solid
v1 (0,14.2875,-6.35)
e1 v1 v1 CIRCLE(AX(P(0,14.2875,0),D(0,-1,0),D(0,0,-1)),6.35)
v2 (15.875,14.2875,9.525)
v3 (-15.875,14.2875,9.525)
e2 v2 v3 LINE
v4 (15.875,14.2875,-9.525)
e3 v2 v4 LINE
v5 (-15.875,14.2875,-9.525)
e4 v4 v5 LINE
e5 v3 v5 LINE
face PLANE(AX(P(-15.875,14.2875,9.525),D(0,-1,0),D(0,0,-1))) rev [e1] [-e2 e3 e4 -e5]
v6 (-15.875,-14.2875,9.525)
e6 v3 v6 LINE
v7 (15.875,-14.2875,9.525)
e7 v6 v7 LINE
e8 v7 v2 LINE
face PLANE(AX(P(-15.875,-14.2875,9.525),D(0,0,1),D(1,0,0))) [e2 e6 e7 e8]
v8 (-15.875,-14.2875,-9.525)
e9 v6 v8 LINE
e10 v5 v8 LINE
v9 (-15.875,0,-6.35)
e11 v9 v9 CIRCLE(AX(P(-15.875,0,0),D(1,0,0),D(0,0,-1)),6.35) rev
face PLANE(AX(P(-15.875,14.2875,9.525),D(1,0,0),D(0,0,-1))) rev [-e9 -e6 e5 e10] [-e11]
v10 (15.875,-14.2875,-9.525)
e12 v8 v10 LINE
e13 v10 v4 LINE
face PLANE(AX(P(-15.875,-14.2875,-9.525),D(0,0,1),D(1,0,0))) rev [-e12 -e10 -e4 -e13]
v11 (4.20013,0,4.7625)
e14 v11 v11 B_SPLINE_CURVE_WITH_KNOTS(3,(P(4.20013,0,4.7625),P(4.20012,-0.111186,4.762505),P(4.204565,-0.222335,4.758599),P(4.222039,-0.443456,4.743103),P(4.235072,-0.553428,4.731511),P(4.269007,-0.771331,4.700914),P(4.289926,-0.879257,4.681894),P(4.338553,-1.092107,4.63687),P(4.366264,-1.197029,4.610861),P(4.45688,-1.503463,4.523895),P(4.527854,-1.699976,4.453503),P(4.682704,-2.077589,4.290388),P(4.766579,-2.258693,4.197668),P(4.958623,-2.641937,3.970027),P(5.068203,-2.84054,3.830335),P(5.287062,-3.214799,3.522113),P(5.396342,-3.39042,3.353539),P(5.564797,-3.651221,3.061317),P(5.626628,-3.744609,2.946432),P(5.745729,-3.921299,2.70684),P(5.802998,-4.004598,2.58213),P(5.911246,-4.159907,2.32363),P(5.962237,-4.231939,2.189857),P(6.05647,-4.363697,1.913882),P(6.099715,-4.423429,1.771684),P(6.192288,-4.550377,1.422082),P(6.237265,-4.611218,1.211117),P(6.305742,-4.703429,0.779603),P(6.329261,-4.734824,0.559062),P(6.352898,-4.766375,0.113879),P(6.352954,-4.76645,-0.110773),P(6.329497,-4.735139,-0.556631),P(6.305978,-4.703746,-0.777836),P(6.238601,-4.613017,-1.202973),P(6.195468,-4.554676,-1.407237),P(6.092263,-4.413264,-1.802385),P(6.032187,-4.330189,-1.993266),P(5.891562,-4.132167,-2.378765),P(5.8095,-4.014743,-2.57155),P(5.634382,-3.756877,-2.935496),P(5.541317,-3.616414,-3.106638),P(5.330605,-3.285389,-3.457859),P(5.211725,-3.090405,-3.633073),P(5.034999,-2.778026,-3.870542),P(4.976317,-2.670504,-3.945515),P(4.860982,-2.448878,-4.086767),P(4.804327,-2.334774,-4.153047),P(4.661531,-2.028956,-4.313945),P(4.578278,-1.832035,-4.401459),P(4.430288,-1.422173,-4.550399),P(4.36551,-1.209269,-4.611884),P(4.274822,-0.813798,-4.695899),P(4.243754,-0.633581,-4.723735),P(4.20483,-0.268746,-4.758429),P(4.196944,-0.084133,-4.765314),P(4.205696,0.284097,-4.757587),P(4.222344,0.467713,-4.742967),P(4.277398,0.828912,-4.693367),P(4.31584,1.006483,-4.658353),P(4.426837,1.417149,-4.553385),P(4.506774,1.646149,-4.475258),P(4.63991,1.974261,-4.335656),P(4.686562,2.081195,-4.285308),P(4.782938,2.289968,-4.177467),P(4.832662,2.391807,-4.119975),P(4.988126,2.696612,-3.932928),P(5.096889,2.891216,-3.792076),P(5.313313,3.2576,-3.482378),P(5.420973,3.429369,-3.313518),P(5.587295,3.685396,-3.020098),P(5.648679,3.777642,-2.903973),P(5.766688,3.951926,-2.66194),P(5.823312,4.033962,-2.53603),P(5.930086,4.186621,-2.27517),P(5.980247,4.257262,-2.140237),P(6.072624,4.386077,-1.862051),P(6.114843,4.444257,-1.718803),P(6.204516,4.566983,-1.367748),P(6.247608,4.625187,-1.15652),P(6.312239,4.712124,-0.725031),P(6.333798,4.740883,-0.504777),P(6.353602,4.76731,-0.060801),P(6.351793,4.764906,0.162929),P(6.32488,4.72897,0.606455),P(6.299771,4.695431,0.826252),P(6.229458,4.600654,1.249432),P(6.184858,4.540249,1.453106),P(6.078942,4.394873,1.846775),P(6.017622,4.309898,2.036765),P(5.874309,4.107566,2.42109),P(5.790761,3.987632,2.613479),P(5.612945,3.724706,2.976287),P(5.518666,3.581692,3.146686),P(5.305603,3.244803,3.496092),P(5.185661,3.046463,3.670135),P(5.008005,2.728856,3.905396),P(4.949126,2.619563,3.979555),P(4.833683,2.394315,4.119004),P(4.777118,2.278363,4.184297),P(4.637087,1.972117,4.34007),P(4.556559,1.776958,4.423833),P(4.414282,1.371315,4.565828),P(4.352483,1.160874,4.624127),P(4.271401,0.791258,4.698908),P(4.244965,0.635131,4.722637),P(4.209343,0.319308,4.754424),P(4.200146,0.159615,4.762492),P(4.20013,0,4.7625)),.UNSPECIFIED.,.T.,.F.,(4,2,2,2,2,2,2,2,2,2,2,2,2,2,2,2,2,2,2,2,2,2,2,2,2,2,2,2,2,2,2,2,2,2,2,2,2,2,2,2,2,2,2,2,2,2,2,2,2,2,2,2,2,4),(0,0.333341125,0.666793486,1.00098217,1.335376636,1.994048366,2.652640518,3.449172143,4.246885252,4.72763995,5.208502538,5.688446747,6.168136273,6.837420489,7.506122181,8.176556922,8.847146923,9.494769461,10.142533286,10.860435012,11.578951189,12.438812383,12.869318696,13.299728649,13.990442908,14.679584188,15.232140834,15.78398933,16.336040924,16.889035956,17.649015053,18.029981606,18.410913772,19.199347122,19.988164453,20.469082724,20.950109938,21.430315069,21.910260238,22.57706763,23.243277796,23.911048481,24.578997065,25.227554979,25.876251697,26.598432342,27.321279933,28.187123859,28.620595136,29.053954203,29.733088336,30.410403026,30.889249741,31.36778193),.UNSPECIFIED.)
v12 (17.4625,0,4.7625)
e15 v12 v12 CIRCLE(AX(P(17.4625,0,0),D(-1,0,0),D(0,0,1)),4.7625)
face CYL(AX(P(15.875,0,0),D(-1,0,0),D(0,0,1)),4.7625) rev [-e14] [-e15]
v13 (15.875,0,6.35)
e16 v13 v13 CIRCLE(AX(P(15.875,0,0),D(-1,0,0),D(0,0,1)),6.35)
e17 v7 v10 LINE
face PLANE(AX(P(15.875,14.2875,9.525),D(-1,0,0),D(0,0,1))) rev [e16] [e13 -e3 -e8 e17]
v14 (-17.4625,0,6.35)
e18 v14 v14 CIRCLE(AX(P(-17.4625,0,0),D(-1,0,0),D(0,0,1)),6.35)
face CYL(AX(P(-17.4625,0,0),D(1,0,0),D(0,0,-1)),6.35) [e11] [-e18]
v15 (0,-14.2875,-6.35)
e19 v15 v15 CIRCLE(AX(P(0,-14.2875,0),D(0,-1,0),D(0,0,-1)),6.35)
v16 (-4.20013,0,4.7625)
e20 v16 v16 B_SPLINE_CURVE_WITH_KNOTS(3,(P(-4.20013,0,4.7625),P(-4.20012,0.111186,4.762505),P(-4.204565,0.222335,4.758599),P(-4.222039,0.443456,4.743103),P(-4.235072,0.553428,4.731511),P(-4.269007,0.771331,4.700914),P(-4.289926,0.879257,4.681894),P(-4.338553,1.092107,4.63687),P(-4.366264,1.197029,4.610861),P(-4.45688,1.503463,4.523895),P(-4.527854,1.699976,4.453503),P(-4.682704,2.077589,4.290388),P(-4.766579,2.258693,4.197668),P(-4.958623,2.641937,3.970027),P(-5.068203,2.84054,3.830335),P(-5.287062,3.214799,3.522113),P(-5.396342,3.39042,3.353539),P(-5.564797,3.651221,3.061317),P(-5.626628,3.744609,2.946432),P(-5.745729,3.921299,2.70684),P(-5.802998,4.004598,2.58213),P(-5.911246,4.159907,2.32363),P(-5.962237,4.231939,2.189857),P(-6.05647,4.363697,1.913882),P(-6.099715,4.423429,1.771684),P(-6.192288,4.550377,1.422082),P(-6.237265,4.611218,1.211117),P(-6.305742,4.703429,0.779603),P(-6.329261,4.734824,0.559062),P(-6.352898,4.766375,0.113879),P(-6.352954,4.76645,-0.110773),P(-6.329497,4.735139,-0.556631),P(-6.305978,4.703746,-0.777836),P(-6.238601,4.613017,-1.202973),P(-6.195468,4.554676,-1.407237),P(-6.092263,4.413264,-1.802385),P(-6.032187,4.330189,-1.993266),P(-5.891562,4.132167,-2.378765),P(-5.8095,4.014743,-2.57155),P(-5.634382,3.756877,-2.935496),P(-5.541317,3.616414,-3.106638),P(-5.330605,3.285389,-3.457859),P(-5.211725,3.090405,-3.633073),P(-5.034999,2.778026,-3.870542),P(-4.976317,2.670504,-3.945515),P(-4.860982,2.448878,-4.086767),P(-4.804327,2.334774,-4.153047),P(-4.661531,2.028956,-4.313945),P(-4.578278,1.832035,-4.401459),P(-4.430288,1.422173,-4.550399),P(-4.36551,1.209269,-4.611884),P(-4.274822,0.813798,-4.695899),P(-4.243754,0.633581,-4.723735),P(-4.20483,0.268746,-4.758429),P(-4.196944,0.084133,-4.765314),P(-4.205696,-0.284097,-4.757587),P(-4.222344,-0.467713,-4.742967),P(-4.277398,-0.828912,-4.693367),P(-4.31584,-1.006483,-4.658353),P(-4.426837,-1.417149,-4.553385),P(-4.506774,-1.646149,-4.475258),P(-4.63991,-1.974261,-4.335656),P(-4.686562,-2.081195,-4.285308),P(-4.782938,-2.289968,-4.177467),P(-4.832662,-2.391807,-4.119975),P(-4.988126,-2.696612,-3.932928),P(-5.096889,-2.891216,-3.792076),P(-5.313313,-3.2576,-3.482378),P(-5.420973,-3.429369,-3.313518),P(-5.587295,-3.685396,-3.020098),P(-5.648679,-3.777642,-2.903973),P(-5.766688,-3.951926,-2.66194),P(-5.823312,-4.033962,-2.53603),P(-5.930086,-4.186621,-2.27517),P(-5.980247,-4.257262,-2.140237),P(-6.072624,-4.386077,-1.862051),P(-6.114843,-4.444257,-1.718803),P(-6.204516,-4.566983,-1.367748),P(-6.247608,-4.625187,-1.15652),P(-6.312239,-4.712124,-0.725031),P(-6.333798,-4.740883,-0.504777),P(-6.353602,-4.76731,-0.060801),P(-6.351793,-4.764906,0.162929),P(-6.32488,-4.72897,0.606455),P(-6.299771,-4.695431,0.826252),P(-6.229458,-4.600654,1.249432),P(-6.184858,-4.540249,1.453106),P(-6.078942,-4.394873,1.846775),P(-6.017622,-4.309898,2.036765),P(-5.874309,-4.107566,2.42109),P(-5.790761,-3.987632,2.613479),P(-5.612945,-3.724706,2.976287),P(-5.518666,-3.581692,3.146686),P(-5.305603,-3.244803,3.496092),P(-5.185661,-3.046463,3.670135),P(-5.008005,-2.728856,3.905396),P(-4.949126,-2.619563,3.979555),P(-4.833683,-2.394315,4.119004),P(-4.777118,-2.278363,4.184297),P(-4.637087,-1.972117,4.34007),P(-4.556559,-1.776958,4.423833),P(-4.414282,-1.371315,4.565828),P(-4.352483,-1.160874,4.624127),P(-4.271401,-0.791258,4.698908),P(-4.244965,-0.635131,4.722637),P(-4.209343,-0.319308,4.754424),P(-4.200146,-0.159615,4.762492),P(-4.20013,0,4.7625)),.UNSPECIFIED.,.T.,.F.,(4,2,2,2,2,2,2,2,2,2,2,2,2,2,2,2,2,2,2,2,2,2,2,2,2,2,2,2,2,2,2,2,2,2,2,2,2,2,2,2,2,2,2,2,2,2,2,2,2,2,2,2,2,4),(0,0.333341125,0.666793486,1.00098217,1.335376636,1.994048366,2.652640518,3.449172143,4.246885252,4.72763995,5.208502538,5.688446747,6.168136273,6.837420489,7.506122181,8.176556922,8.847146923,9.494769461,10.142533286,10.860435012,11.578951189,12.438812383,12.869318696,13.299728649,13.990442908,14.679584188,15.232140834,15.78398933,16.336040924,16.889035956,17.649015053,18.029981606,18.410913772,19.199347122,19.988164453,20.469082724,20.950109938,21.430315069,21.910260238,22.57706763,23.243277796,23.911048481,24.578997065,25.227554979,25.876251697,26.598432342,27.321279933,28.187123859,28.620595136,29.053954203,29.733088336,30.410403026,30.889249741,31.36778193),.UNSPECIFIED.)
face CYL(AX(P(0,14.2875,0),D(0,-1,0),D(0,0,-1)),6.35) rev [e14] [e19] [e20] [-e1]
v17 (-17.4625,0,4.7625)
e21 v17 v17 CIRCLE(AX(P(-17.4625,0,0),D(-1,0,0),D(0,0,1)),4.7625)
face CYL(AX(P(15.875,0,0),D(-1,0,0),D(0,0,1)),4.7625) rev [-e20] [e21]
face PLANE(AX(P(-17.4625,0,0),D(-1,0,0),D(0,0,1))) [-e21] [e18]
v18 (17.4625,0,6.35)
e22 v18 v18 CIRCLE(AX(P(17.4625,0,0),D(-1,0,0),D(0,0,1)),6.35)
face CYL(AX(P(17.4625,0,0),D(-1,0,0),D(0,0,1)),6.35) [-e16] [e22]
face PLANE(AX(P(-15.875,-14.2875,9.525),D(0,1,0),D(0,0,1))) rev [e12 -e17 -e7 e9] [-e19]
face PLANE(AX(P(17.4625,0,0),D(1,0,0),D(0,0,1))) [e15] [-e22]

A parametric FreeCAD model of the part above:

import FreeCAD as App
import Part
import Sketcher
Q = App.Units.Quantity

doc = App.newDocument("Part")
body = doc.addObject("PartDesign::Body", "Body")

# Sketch on XY plane
sketch1 = body.newObject("Sketcher::SketchObject", "Sketch")
sketch1.AttachmentSupport = (doc.getObject("XY_Plane"), [""])
sketch1.MapMode = "FlatFace"
sketch1.addGeometry([
    Part.LineSegment(App.Vector(-16, 14, 0), App.Vector(-16, -14, 0)),
    Part.LineSegment(App.Vector(-16, -14, 0), App.Vector(16, -14, 0)),
    Part.LineSegment(App.Vector(16, -14, 0), App.Vector(16, 14, 0)),
    Part.LineSegment(App.Vector(16, 14, 0), App.Vector(-16, 14, 0)),
], False)
sketch1.addConstraint([
    Sketcher.Constraint("Coincident", 0, 2, 1, 1),
    Sketcher.Constraint("Coincident", 1, 2, 2, 1),
    Sketcher.Constraint("Coincident", 2, 2, 3, 1),
    Sketcher.Constraint("Coincident", 3, 2, 0, 1),
    Sketcher.Constraint("Vertical", 0),
    Sketcher.Constraint("Horizontal", 1),
    Sketcher.Constraint("Vertical", 2),
    Sketcher.Constraint("Horizontal", 3),
    Sketcher.Constraint("Symmetric", 0, 2, 2, 2, -1, 1),
    Sketcher.Constraint("DistanceX", 1, 1, 1, 2, Q("1.25 in")),
    Sketcher.Constraint("DistanceY", 0, 2, 0, 1, Q("1.125 in")),
])
pad1 = body.newObject("PartDesign::Pad", "Pad")
pad1.Profile = sketch1
pad1.Length = Q("0.75 in")
pad1.Midplane = True

# Sketch on XZ plane
sketch2 = body.newObject("Sketcher::SketchObject", "Sketch001")
sketch2.AttachmentSupport = (doc.getObject("XZ_Plane"), [""])
sketch2.MapMode = "FlatFace"
sketch2.AttachmentOffset = App.Placement(App.Vector(0, 0, 0.5625 * 25.4), App.Rotation())
sketch2.addGeometry(Part.Circle(App.Vector(0, 0, 0), App.Vector(0, 0, 1), 6), False)
sketch2.addConstraint([
    Sketcher.Constraint("Coincident", 0, 3, -1, 1),
    Sketcher.Constraint("Diameter", 0, Q("0.5 in")),
])
pocket1 = body.newObject("PartDesign::Pocket", "Pocket")
pocket1.Profile = sketch2
pocket1.Type = "ThroughAll"

# Sketch on YZ plane
sketch3 = body.newObject("Sketcher::SketchObject", "Sketch002")
sketch3.AttachmentSupport = (doc.getObject("YZ_Plane"), [""])
sketch3.MapMode = "FlatFace"
sketch3.AttachmentOffset = App.Placement(App.Vector(0, 0, -0.625 * 25.4), App.Rotation())
sketch3.addGeometry(Part.Circle(App.Vector(0, 0, 0), App.Vector(0, 0, 1), 4.8), False)
sketch3.addConstraint([
    Sketcher.Constraint("Coincident", 0, 3, -1, 1),
    Sketcher.Constraint("Diameter", 0, Q("0.375 in")),
])
pocket2 = body.newObject("PartDesign::Pocket", "Pocket001")
pocket2.Profile = sketch3
pocket2.Type = "ThroughAll"
pocket2.Reversed = True

# Sketch on YZ plane
sketch4 = body.newObject("Sketcher::SketchObject", "Sketch003")
sketch4.AttachmentSupport = (doc.getObject("YZ_Plane"), [""])
sketch4.MapMode = "FlatFace"
sketch4.AttachmentOffset = App.Placement(App.Vector(0, 0, -0.6875 * 25.4), App.Rotation())
sketch4.addGeometry([
    Part.Circle(App.Vector(0, 0, 0), App.Vector(0, 0, 1), 6.3),
    Part.Circle(App.Vector(0, 0, 0), App.Vector(0, 0, 1), 4.8),
], False)
sketch4.addConstraint([
    Sketcher.Constraint("Coincident", 0, 3, -1, 1),
    Sketcher.Constraint("Coincident", 1, 3, -1, 1),
    Sketcher.Constraint("Diameter", 0, Q("0.5 in")),
    Sketcher.Constraint("Diameter", 1, Q("0.375 in")),
])
pad2 = body.newObject("PartDesign::Pad", "Pad001")
pad2.Profile = sketch4
pad2.Length = Q("0.0625 in")
doc.recompute()

mirrored = body.newObject("PartDesign::Mirrored", "Mirrored")
mirrored.Originals = [pad2]
mirrored.MirrorPlane = (doc.getObject("YZ_Plane"), [""])
body.Tip = mirrored

doc.recompute()
